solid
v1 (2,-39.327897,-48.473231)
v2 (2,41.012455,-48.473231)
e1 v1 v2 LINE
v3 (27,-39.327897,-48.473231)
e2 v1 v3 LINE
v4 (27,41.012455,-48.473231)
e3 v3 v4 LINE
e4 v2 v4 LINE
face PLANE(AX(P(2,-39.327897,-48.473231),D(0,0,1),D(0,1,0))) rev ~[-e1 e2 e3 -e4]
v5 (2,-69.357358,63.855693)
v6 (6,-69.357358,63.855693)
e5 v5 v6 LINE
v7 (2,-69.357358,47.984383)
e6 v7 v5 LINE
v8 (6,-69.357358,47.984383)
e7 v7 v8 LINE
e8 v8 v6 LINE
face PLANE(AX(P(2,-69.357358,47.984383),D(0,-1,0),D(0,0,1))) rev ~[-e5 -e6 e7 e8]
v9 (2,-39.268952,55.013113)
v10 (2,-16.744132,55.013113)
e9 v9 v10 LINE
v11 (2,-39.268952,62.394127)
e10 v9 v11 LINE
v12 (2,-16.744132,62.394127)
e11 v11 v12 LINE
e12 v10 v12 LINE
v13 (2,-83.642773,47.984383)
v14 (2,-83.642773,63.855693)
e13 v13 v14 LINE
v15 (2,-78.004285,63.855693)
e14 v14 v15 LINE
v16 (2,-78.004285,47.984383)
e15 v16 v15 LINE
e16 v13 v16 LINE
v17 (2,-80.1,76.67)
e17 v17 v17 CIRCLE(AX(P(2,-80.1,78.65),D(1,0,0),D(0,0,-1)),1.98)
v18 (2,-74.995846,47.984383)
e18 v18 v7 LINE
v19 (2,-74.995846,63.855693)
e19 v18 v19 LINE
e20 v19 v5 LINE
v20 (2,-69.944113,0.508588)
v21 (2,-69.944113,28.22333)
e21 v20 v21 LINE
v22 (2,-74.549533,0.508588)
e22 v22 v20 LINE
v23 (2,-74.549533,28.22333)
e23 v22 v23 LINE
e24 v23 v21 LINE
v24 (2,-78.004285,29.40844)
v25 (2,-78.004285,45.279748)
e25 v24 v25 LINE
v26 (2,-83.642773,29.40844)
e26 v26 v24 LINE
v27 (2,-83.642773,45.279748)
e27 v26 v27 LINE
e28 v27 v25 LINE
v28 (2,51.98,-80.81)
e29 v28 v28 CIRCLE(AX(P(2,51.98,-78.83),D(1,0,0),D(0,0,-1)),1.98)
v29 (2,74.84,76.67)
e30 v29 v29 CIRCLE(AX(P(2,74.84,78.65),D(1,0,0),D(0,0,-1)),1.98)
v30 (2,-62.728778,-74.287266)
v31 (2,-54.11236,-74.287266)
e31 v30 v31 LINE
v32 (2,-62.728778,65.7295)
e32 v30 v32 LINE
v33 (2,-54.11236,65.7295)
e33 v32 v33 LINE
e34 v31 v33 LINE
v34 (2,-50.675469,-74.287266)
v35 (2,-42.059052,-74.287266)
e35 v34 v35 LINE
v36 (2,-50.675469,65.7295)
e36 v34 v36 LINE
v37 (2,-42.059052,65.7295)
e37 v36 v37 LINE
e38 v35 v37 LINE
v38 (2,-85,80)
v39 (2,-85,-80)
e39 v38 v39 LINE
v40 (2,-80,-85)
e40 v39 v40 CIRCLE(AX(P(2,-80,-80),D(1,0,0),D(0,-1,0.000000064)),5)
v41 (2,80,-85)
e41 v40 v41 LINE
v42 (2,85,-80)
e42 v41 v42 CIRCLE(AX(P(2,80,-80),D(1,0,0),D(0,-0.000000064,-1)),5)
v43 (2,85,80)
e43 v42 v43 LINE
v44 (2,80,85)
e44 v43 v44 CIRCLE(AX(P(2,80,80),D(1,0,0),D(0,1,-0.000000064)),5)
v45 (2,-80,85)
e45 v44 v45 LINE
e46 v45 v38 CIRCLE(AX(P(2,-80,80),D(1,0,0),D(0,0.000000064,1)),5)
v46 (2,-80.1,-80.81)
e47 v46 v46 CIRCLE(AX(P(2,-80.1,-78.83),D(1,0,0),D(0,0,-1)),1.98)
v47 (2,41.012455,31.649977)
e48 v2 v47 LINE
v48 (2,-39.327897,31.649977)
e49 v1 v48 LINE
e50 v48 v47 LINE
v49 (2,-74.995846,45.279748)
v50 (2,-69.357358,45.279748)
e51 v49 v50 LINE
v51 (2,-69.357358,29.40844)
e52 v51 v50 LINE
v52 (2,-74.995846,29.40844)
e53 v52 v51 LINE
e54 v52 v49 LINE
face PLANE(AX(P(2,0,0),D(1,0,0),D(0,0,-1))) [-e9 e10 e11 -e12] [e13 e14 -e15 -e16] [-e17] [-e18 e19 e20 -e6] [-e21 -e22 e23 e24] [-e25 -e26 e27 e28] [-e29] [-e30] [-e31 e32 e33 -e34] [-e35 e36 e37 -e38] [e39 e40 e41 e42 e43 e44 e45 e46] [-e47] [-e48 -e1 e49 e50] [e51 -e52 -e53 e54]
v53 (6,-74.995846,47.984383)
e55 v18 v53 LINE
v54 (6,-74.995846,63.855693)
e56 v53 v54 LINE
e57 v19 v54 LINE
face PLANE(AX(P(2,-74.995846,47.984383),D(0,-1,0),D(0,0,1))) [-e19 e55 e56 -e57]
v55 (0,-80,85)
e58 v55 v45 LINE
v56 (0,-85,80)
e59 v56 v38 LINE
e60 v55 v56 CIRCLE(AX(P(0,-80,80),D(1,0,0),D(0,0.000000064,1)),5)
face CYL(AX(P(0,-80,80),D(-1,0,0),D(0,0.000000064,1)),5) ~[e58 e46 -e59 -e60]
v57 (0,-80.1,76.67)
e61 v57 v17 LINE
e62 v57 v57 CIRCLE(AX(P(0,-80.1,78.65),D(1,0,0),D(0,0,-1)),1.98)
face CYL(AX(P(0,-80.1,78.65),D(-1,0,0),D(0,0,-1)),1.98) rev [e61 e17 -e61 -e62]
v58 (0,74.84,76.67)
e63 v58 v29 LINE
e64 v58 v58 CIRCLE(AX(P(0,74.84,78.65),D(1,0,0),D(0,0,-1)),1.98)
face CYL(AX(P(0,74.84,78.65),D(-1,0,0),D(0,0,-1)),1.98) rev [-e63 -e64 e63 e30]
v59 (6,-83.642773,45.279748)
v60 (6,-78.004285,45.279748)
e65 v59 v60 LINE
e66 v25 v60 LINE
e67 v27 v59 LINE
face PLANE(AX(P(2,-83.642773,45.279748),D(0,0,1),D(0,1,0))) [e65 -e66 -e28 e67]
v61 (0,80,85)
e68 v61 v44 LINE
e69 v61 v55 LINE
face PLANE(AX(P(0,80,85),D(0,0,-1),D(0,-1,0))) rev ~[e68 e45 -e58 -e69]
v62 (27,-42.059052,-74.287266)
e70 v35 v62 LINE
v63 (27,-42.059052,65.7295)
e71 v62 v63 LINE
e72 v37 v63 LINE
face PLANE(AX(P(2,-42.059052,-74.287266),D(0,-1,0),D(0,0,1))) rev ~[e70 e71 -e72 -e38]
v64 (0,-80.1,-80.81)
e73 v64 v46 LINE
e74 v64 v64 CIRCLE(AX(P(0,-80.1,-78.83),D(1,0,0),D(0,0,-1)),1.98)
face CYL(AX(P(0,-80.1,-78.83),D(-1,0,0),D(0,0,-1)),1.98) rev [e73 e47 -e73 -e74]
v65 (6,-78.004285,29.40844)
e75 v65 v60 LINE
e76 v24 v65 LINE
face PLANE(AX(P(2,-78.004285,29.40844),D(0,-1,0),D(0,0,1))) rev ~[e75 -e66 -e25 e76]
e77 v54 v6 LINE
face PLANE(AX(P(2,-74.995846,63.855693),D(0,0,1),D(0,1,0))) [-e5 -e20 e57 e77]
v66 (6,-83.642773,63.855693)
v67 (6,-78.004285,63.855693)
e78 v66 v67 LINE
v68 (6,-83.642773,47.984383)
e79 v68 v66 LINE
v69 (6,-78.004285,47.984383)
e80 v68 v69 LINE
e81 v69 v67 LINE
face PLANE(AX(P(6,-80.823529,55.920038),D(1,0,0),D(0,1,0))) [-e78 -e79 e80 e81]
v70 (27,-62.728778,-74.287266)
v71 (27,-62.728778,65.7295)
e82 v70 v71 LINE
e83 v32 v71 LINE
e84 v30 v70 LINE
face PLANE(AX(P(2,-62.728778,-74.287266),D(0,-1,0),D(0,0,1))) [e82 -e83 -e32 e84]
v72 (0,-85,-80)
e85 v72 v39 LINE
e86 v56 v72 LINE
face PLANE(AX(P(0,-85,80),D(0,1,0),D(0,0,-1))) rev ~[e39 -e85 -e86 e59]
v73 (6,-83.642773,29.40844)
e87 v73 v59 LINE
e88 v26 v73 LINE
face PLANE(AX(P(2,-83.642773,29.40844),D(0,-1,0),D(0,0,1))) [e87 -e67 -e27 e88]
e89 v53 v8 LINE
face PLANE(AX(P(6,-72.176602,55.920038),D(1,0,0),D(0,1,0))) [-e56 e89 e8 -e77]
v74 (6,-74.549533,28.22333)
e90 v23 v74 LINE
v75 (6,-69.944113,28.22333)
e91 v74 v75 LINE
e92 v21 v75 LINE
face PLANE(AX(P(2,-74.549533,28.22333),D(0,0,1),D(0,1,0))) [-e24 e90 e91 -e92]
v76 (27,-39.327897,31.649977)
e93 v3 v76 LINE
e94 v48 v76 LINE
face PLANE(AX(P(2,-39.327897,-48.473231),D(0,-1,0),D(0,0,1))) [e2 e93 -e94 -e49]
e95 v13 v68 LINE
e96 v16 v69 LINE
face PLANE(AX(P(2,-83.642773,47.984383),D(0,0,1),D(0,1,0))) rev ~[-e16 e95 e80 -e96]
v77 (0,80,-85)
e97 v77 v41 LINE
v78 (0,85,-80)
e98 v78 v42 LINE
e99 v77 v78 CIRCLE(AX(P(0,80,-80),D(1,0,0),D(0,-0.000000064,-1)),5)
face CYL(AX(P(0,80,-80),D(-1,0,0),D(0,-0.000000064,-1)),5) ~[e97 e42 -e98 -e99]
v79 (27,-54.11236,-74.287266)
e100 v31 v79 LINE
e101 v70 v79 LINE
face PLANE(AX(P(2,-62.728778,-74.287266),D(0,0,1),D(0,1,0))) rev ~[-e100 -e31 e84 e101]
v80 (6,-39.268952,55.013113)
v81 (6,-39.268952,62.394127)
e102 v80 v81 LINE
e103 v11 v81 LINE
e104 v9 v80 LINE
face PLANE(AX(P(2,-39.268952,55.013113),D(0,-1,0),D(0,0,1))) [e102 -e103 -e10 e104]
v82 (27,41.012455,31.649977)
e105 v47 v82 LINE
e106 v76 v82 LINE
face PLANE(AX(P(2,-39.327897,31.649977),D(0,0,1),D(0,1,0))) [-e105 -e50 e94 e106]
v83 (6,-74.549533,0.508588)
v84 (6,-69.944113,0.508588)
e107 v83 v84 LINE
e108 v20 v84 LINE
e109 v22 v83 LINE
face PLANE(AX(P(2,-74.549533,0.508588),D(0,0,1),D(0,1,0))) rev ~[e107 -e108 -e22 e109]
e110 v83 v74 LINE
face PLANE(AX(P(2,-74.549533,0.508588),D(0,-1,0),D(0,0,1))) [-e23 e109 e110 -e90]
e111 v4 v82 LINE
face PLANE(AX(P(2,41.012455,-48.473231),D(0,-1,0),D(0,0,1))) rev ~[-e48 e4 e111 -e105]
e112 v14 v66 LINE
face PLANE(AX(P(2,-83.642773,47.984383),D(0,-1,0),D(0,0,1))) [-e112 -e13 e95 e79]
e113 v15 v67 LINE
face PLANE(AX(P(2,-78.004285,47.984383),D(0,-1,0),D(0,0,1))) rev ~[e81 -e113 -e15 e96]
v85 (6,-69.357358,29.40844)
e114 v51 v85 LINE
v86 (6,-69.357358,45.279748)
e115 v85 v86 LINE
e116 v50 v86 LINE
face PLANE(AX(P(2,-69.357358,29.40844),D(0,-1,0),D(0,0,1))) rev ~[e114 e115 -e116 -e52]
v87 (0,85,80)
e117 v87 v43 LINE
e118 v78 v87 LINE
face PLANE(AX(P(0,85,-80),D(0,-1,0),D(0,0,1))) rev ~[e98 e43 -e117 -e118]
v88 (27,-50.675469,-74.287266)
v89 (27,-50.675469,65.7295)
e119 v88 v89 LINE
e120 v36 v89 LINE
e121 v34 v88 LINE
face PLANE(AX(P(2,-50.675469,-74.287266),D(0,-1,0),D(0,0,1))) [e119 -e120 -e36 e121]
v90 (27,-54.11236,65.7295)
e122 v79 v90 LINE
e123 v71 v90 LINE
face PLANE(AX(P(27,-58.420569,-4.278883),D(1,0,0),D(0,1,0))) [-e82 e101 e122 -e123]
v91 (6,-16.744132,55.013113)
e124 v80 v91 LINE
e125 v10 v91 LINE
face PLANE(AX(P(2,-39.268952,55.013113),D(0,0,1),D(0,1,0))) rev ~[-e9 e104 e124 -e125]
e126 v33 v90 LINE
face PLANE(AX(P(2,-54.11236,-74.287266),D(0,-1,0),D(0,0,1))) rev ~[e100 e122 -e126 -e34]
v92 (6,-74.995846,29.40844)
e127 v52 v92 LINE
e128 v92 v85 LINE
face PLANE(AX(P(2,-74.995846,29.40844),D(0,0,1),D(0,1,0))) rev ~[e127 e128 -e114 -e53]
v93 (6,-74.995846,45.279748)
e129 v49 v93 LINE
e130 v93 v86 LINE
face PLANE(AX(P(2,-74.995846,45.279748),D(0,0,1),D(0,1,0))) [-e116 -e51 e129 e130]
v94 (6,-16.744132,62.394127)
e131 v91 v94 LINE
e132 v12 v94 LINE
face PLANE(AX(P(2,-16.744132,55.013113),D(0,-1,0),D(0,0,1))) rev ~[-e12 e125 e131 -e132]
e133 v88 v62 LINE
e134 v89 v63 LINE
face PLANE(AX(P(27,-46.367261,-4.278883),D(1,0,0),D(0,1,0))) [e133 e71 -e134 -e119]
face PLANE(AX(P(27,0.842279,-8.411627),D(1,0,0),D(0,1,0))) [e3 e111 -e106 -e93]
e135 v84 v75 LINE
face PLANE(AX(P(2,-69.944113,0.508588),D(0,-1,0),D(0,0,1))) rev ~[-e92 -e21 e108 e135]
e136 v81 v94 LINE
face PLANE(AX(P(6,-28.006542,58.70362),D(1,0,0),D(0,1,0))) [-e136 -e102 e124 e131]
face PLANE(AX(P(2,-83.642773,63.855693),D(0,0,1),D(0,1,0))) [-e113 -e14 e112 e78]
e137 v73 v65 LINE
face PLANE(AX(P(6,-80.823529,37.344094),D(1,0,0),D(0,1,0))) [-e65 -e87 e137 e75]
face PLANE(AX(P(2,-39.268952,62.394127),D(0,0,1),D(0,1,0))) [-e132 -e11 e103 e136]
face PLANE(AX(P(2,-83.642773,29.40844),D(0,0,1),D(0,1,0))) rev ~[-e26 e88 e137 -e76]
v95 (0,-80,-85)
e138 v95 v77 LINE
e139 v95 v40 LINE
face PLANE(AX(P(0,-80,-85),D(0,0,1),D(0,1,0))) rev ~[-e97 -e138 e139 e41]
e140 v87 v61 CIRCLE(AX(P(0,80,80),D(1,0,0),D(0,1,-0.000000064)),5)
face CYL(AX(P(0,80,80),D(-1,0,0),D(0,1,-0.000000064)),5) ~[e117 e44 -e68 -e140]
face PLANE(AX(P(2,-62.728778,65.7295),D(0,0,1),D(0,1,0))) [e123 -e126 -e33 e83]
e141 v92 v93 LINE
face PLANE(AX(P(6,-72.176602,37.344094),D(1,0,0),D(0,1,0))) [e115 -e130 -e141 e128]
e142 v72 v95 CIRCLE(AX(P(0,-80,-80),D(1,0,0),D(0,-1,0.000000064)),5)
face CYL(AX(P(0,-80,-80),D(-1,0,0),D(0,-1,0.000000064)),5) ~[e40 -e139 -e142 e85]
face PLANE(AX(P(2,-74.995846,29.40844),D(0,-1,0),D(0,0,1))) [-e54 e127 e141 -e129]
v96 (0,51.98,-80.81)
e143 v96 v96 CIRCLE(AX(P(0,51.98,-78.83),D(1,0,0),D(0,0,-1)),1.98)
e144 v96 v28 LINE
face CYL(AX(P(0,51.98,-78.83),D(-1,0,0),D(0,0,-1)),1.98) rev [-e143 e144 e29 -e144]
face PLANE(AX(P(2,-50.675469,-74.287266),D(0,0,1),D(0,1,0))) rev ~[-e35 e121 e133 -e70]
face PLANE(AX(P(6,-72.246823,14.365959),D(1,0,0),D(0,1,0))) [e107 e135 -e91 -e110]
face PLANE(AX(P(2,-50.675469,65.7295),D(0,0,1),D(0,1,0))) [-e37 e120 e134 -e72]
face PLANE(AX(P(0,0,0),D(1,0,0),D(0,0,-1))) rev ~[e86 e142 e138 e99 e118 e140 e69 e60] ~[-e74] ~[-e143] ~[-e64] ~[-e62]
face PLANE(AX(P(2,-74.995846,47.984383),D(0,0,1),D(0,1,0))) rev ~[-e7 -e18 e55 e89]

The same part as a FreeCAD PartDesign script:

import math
import FreeCAD as App
import Part
import Sketcher
from FreeCAD import Vector


def add_polygon(sketch, points):
    """Adds a closed chain of lines whose ends are joined by coincident constraints."""
    first, n = sketch.GeometryCount, len(points)
    for a, b in zip(points, points[1:] + points[:1]):
        sketch.addGeometry(Part.LineSegment(App.Vector(*a, 0), App.Vector(*b, 0)), False)
    for i in range(n):
        sketch.addConstraint(Sketcher.Constraint("Coincident", first + i, 2, first + (i + 1) % n, 1))

doc = App.newDocument("Part")
params = doc.addObject("Spreadsheet::Sheet", "Params")
for row, (alias, value) in enumerate([
    ("sketch1_radius", "5 mm"),
    ("sketch1_diameter", "3.96 mm"),
    ("sketch1_width", "160 mm"),
    ("pad1_length", "2 mm"),
    ("pad2_length", "4 mm"),
    ("pad3_length", "4 mm"),
    ("pad4_length", "4 mm"),
    ("pad5_length", "25 mm"),
    ("pad6_length", "25 mm"),
], start=1):
    params.set(f"A{row}", alias)
    params.set(f"B{row}", "=" + value)
    params.setAlias(f"B{row}", alias)

body = doc.addObject("PartDesign::Body", "Body")

sketch1 = doc.addObject("Sketcher::SketchObject", "Sketch")
body.addObject(sketch1)
sketch1.AttachmentSupport = (doc.YZ_Plane, [""])
sketch1.MapMode = "FlatFace"
sketch1.addGeometry(Part.LineSegment(Vector(-80, -85, 0), Vector(80, -85, 0)), False)
sketch1.addGeometry(Part.ArcOfCircle(Part.Circle(Vector(80, -80, 0), Vector(0, 0, 1), 5), math.radians(-90), math.radians(0)), False)
sketch1.addGeometry(Part.LineSegment(Vector(85, -80, 0), Vector(85, 80, 0)), False)
sketch1.addGeometry(Part.ArcOfCircle(Part.Circle(Vector(80, 80, 0), Vector(0, 0, 1), 5), math.radians(0), math.radians(90)), False)
sketch1.addGeometry(Part.LineSegment(Vector(80, 85, 0), Vector(-80, 85, 0)), False)
sketch1.addGeometry(Part.ArcOfCircle(Part.Circle(Vector(-80, 80, 0), Vector(0, 0, 1), 5), math.radians(90), math.radians(180)), False)
sketch1.addGeometry(Part.LineSegment(Vector(-85, 80, 0), Vector(-85, -80, 0)), False)
sketch1.addGeometry(Part.ArcOfCircle(Part.Circle(Vector(-80, -80, 0), Vector(0, 0, 1), 5), math.radians(180), math.radians(270)), False)
sketch1.addGeometry(Part.Circle(Vector(-78.7, -80.1, 0), Vector(0, 0, 1), 2), False)
sketch1.addGeometry(Part.Circle(Vector(78.8, -80.1, 0), Vector(0, 0, 1), 2), False)
sketch1.addGeometry(Part.Circle(Vector(-78.7, 74.8, 0), Vector(0, 0, 1), 2), False)
sketch1.addGeometry(Part.Circle(Vector(78.8, 52, 0), Vector(0, 0, 1), 2), False)
sketch1.addConstraint(Sketcher.Constraint("Tangent", 0, 2, 1, 1))
sketch1.addConstraint(Sketcher.Constraint("Tangent", 1, 2, 2, 1))
sketch1.addConstraint(Sketcher.Constraint("Tangent", 2, 2, 3, 1))
sketch1.addConstraint(Sketcher.Constraint("Tangent", 3, 2, 4, 1))
sketch1.addConstraint(Sketcher.Constraint("Tangent", 4, 2, 5, 1))
sketch1.addConstraint(Sketcher.Constraint("Tangent", 5, 2, 6, 1))
sketch1.addConstraint(Sketcher.Constraint("Tangent", 6, 2, 7, 1))
sketch1.addConstraint(Sketcher.Constraint("Tangent", 7, 2, 0, 1))
sketch1.addConstraint(Sketcher.Constraint("Horizontal", 0))
sketch1.addConstraint(Sketcher.Constraint("Vertical", 2))
sketch1.addConstraint(Sketcher.Constraint("Horizontal", 4))
sketch1.addConstraint(Sketcher.Constraint("Vertical", 6))
sketch1.addConstraint(Sketcher.Constraint("Equal", 1, 3))
sketch1.addConstraint(Sketcher.Constraint("Equal", 3, 5))
sketch1.addConstraint(Sketcher.Constraint("Equal", 5, 7))
sketch1.addConstraint(Sketcher.Constraint("Equal", 8, 9))
sketch1.addConstraint(Sketcher.Constraint("Equal", 9, 10))
sketch1.addConstraint(Sketcher.Constraint("Equal", 10, 11))
sketch1.addConstraint(Sketcher.Constraint("Symmetric", 1, 3, 5, 3, -1, 1))
sketch1.addConstraint(Sketcher.Constraint("Horizontal", 8, 3, 9, 3))
sketch1.addConstraint(Sketcher.Constraint("Vertical", 8, 3, 10, 3))
sketch1.addConstraint(Sketcher.Constraint("Vertical", 9, 3, 11, 3))
sketch1.addConstraint(Sketcher.Constraint("Equal", 4, 2))
sketch1.addConstraint(Sketcher.Constraint("Radius", 1, 5.0))
sketch1.addConstraint(Sketcher.Constraint("Diameter", 8, 3.96))
sketch1.addConstraint(Sketcher.Constraint("DistanceX", 0, 1, 0, 2, 160.0))
sketch1.addConstraint(Sketcher.Constraint("DistanceY", 8, 3, -1, 1, 80.1))
sketch1.addConstraint(Sketcher.Constraint("DistanceX", 8, 3, -1, 1, 78.65))
sketch1.addConstraint(Sketcher.Constraint("DistanceX", -1, 1, 9, 3, 78.83))
sketch1.addConstraint(Sketcher.Constraint("DistanceY", -1, 1, 10, 3, 74.84))
sketch1.addConstraint(Sketcher.Constraint("DistanceY", -1, 1, 11, 3, 51.98))
sketch1.setExpression("Constraints[23]", "Params.sketch1_radius")
sketch1.setExpression("Constraints[24]", "Params.sketch1_diameter")
sketch1.setExpression("Constraints[25]", "Params.sketch1_width")
pad1 = doc.addObject("PartDesign::Pad", "Pad")
body.addObject(pad1)
pad1.Profile = sketch1
pad1.setExpression("Length", "Params.pad1_length")
body2 = doc.addObject("PartDesign::Body", "Body001")
doc.recompute()

body.Placement = App.Placement(Vector(0, 0, 0), App.Rotation(Vector(1, 0, 0), 270))
boolean = doc.addObject("PartDesign::Boolean", "Boolean")
body2.addObject(boolean)
boolean.Type = "Fuse"
boolean.addObjects([body])

sketch2 = doc.addObject("Sketcher::SketchObject", "Sketch001")
body2.addObject(sketch2)
sketch2.AttachmentSupport = (doc.getObject("YZ_Plane001"), [""])
sketch2.MapMode = "FlatFace"
sketch2.AttachmentOffset = App.Placement(Vector(0, 0, 2), App.Rotation())
add_polygon(sketch2, [(-75, 64), (-75, 48), (-69, 48), (-69, 64)])
add_polygon(sketch2, [(-84, 64), (-84, 48), (-78, 48), (-78, 64)])
add_polygon(sketch2, [(-84, 45), (-84, 29), (-78, 29), (-78, 45)])
add_polygon(sketch2, [(-75, 45), (-75, 29), (-69, 29), (-69, 45)])
sketch2.addConstraint(Sketcher.Constraint("Vertical", 0))
sketch2.addConstraint(Sketcher.Constraint("Horizontal", 1))
sketch2.addConstraint(Sketcher.Constraint("Vertical", 2))
sketch2.addConstraint(Sketcher.Constraint("Horizontal", 3))
sketch2.addConstraint(Sketcher.Constraint("Vertical", 4))
sketch2.addConstraint(Sketcher.Constraint("Horizontal", 5))
sketch2.addConstraint(Sketcher.Constraint("Vertical", 6))
sketch2.addConstraint(Sketcher.Constraint("Horizontal", 7))
sketch2.addConstraint(Sketcher.Constraint("Vertical", 8))
sketch2.addConstraint(Sketcher.Constraint("Horizontal", 9))
sketch2.addConstraint(Sketcher.Constraint("Vertical", 10))
sketch2.addConstraint(Sketcher.Constraint("Horizontal", 11))
sketch2.addConstraint(Sketcher.Constraint("Vertical", 12))
sketch2.addConstraint(Sketcher.Constraint("Horizontal", 13))
sketch2.addConstraint(Sketcher.Constraint("Vertical", 14))
sketch2.addConstraint(Sketcher.Constraint("Horizontal", 15))
sketch2.addConstraint(Sketcher.Constraint("Horizontal", 1, 2, 4, 2))
sketch2.addConstraint(Sketcher.Constraint("Horizontal", 3, 2, 6, 2))
sketch2.addConstraint(Sketcher.Constraint("Horizontal", 9, 2, 12, 2))
sketch2.addConstraint(Sketcher.Constraint("Horizontal", 11, 2, 14, 2))
sketch2.addConstraint(Sketcher.Constraint("Vertical", 7, 2, 8, 2))
sketch2.addConstraint(Sketcher.Constraint("Vertical", 6, 2, 9, 2))
sketch2.addConstraint(Sketcher.Constraint("Vertical", 3, 2, 12, 2))
sketch2.addConstraint(Sketcher.Constraint("Vertical", 2, 2, 13, 2))
sketch2.addConstraint(Sketcher.Constraint("Equal", 3, 5))
sketch2.addConstraint(Sketcher.Constraint("Equal", 6, 8))
sketch2.addConstraint(Sketcher.Constraint("DistanceY", 0, 2, 0, 1, 15.871309))
sketch2.addConstraint(Sketcher.Constraint("DistanceX", 1, 1, 1, 2, 5.638488))
sketch2.addConstraint(Sketcher.Constraint("DistanceX", 1, 2, -1, 1, 69.357358))
sketch2.addConstraint(Sketcher.Constraint("DistanceY", -1, 1, 8, 2, 29.40844))
sketch2.addConstraint(Sketcher.Constraint("DistanceX", 5, 2, 0, 2, 3.008439))
sketch2.addConstraint(Sketcher.Constraint("DistanceY", -1, 1, 0, 2, 47.984383))
pad2 = doc.addObject("PartDesign::Pad", "Pad001")
body2.addObject(pad2)
pad2.Profile = sketch2
pad2.setExpression("Length", "Params.pad2_length")

sketch3 = doc.addObject("Sketcher::SketchObject", "Sketch002")
body2.addObject(sketch3)
sketch3.AttachmentSupport = (doc.getObject("YZ_Plane001"), [""])
sketch3.MapMode = "FlatFace"
sketch3.AttachmentOffset = App.Placement(Vector(0, 0, 2), App.Rotation())
add_polygon(sketch3, [(-74.5, 28.2), (-74.5, 0.5), (-69.9, 0.5), (-69.9, 28.2)])
sketch3.addConstraint(Sketcher.Constraint("Vertical", 0))
sketch3.addConstraint(Sketcher.Constraint("Horizontal", 1))
sketch3.addConstraint(Sketcher.Constraint("Vertical", 2))
sketch3.addConstraint(Sketcher.Constraint("Horizontal", 3))
sketch3.addConstraint(Sketcher.Constraint("DistanceX", 1, 1, 1, 2, 4.60542))
sketch3.addConstraint(Sketcher.Constraint("DistanceY", 0, 2, 0, 1, 27.714742))
sketch3.addConstraint(Sketcher.Constraint("DistanceY", -1, 1, 0, 2, 0.508588))
sketch3.addConstraint(Sketcher.Constraint("DistanceX", 0, 2, -1, 1, 74.549533))
pad3 = doc.addObject("PartDesign::Pad", "Pad002")
body2.addObject(pad3)
pad3.Profile = sketch3
pad3.setExpression("Length", "Params.pad3_length")

sketch4 = doc.addObject("Sketcher::SketchObject", "Sketch003")
body2.addObject(sketch4)
sketch4.AttachmentSupport = (doc.getObject("YZ_Plane001"), [""])
sketch4.MapMode = "FlatFace"
sketch4.AttachmentOffset = App.Placement(Vector(0, 0, 2), App.Rotation())
add_polygon(sketch4, [(-39, 62), (-39, 55), (-17, 55), (-17, 62)])
sketch4.addConstraint(Sketcher.Constraint("Vertical", 0))
sketch4.addConstraint(Sketcher.Constraint("Horizontal", 1))
sketch4.addConstraint(Sketcher.Constraint("Vertical", 2))
sketch4.addConstraint(Sketcher.Constraint("Horizontal", 3))
sketch4.addConstraint(Sketcher.Constraint("DistanceX", 1, 1, 1, 2, 22.524819))
sketch4.addConstraint(Sketcher.Constraint("DistanceY", 0, 2, 0, 1, 7.381014))
sketch4.addConstraint(Sketcher.Constraint("DistanceX", 0, 2, -1, 1, 39.268952))
sketch4.addConstraint(Sketcher.Constraint("DistanceY", -1, 1, 0, 2, 55.013113))
pad4 = doc.addObject("PartDesign::Pad", "Pad003")
body2.addObject(pad4)
pad4.Profile = sketch4
pad4.setExpression("Length", "Params.pad4_length")

sketch5 = doc.addObject("Sketcher::SketchObject", "Sketch004")
body2.addObject(sketch5)
sketch5.AttachmentSupport = (doc.getObject("YZ_Plane001"), [""])
sketch5.MapMode = "FlatFace"
sketch5.AttachmentOffset = App.Placement(Vector(0, 0, 2), App.Rotation())
add_polygon(sketch5, [(-39, 32), (-39, -48), (41, -48), (41, 32)])
sketch5.addConstraint(Sketcher.Constraint("Vertical", 0))
sketch5.addConstraint(Sketcher.Constraint("Horizontal", 1))
sketch5.addConstraint(Sketcher.Constraint("Vertical", 2))
sketch5.addConstraint(Sketcher.Constraint("Horizontal", 3))
sketch5.addConstraint(Sketcher.Constraint("DistanceX", 1, 1, 1, 2, 80.340352))
sketch5.addConstraint(Sketcher.Constraint("DistanceY", 0, 2, 0, 1, 80.123208))
sketch5.addConstraint(Sketcher.Constraint("DistanceY", 0, 2, -1, 1, 48.473231))
sketch5.addConstraint(Sketcher.Constraint("DistanceX", 0, 2, -1, 1, 39.327897))
pad5 = doc.addObject("PartDesign::Pad", "Pad004")
body2.addObject(pad5)
pad5.Profile = sketch5
pad5.setExpression("Length", "Params.pad5_length")

sketch6 = doc.addObject("Sketcher::SketchObject", "Sketch005")
body2.addObject(sketch6)
sketch6.AttachmentSupport = (doc.getObject("YZ_Plane001"), [""])
sketch6.MapMode = "FlatFace"
sketch6.AttachmentOffset = App.Placement(Vector(0, 0, 2), App.Rotation())
add_polygon(sketch6, [(-63, 66), (-63, -74), (-54, -74), (-54, 66)])
add_polygon(sketch6, [(-51, 66), (-51, -74), (-42, -74), (-42, 66)])
sketch6.addConstraint(Sketcher.Constraint("Vertical", 0))
sketch6.addConstraint(Sketcher.Constraint("Horizontal", 1))
sketch6.addConstraint(Sketcher.Constraint("Vertical", 2))
sketch6.addConstraint(Sketcher.Constraint("Horizontal", 3))
sketch6.addConstraint(Sketcher.Constraint("Vertical", 4))
sketch6.addConstraint(Sketcher.Constraint("Horizontal", 5))
sketch6.addConstraint(Sketcher.Constraint("Vertical", 6))
sketch6.addConstraint(Sketcher.Constraint("Horizontal", 7))
sketch6.addConstraint(Sketcher.Constraint("Horizontal", 1, 2, 4, 2))
sketch6.addConstraint(Sketcher.Constraint("Horizontal", 3, 2, 6, 2))
sketch6.addConstraint(Sketcher.Constraint("Equal", 3, 5))
sketch6.addConstraint(Sketcher.Constraint("DistanceY", -1, 1, 2, 2, 65.7295))
sketch6.addConstraint(Sketcher.Constraint("DistanceX", 1, 1, 1, 2, 8.616418))
sketch6.addConstraint(Sketcher.Constraint("DistanceY", 0, 2, 0, 1, 140.016765))
sketch6.addConstraint(Sketcher.Constraint("DistanceX", 1, 2, -1, 1, 54.11236))
sketch6.addConstraint(Sketcher.Constraint("DistanceX", 4, 2, -1, 1, 50.675469))
pad6 = doc.addObject("PartDesign::Pad", "Pad005")
body2.addObject(pad6)
pad6.Profile = sketch6
pad6.setExpression("Length", "Params.pad6_length")

doc.recompute()
